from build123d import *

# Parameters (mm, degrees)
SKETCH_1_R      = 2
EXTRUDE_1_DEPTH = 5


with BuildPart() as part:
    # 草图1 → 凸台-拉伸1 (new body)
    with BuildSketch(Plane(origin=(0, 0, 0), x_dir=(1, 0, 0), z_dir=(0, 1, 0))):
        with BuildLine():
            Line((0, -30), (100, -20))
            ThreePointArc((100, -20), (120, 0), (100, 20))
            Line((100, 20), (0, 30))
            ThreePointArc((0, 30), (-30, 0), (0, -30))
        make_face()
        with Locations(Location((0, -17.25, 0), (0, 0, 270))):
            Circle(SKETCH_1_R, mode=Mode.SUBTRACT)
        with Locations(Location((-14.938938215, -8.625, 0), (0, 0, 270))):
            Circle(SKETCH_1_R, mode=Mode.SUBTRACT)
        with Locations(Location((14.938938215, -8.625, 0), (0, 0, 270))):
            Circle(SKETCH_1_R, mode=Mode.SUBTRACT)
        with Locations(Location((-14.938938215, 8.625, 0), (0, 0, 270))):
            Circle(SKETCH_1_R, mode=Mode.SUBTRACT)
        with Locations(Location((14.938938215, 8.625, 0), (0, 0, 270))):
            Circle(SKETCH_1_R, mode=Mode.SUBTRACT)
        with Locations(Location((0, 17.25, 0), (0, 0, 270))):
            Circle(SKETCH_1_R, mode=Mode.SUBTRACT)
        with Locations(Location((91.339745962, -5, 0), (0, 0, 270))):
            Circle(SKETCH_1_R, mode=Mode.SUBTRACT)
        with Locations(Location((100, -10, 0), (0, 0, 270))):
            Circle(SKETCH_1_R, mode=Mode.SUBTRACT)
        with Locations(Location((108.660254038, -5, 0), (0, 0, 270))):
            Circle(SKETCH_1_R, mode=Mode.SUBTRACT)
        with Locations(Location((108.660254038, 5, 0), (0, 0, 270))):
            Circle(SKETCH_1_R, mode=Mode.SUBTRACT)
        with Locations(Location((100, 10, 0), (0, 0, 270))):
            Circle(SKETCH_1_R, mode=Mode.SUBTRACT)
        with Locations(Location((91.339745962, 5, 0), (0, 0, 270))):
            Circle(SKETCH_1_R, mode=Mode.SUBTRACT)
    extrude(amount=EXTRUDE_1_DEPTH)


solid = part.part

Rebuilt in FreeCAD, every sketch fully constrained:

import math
import FreeCAD as App
import Part
import Sketcher

doc = App.newDocument("Part")
body = doc.addObject("PartDesign::Body", "Body")

# Sketch on XZ plane
sketch1 = body.newObject("Sketcher::SketchObject", "Sketch")
sketch1.AttachmentSupport = (doc.getObject("XZ_Plane"), [""])
sketch1.MapMode = "FlatFace"
sketch1.addGeometry(Part.LineSegment(App.Vector(0, 30, 0), App.Vector(100, 20, 0)), False)
sketch1.addGeometry(Part.ArcOfCircle(Part.Circle(App.Vector(100, 0, 0), App.Vector(0, 0, 1), 20), math.radians(-90), math.radians(90)), False)
sketch1.addGeometry(Part.LineSegment(App.Vector(100, -20, 0), App.Vector(0, -30, 0)), False)
sketch1.addGeometry(Part.ArcOfCircle(Part.Circle(App.Vector(0, 0, 0), App.Vector(0, 0, 1), 30), math.radians(90), math.radians(270)), False)
sketch1.addGeometry(Part.Circle(App.Vector(0, 17.2, 0), App.Vector(0, 0, 1), 2), False)
sketch1.addGeometry(Part.Circle(App.Vector(-14.9, 8.6, 0), App.Vector(0, 0, 1), 2), False)
sketch1.addGeometry(Part.Circle(App.Vector(14.9, 8.6, 0), App.Vector(0, 0, 1), 2), False)
sketch1.addGeometry(Part.Circle(App.Vector(100, 10, 0), App.Vector(0, 0, 1), 2), False)
sketch1.addGeometry(Part.Circle(App.Vector(91.3, 5, 0), App.Vector(0, 0, 1), 2), False)
sketch1.addGeometry(Part.Circle(App.Vector(108.7, 5, 0), App.Vector(0, 0, 1), 2), False)
sketch1.addGeometry(Part.Circle(App.Vector(-14.9, -8.6, 0), App.Vector(0, 0, 1), 2), False)
sketch1.addGeometry(Part.Circle(App.Vector(14.9, -8.6, 0), App.Vector(0, 0, 1), 2), False)
sketch1.addGeometry(Part.Circle(App.Vector(0, -17.2, 0), App.Vector(0, 0, 1), 2), False)
sketch1.addGeometry(Part.Circle(App.Vector(91.3, -5, 0), App.Vector(0, 0, 1), 2), False)
sketch1.addGeometry(Part.Circle(App.Vector(108.7, -5, 0), App.Vector(0, 0, 1), 2), False)
sketch1.addGeometry(Part.Circle(App.Vector(100, -10, 0), App.Vector(0, 0, 1), 2), False)
sketch1.addConstraint(Sketcher.Constraint("Coincident", 0, 2, 1, 2))
sketch1.addConstraint(Sketcher.Constraint("Coincident", 1, 1, 2, 1))
sketch1.addConstraint(Sketcher.Constraint("Coincident", 2, 2, 3, 2))
sketch1.addConstraint(Sketcher.Constraint("Coincident", 3, 1, 0, 1))
sketch1.addConstraint(Sketcher.Constraint("Coincident", 3, 3, -1, 1))
sketch1.addConstraint(Sketcher.Constraint("Equal", 4, 5))
sketch1.addConstraint(Sketcher.Constraint("Equal", 5, 6))
sketch1.addConstraint(Sketcher.Constraint("Equal", 6, 7))
sketch1.addConstraint(Sketcher.Constraint("Equal", 7, 8))
sketch1.addConstraint(Sketcher.Constraint("Equal", 8, 9))
sketch1.addConstraint(Sketcher.Constraint("Equal", 9, 10))
sketch1.addConstraint(Sketcher.Constraint("Equal", 10, 11))
sketch1.addConstraint(Sketcher.Constraint("Equal", 11, 12))
sketch1.addConstraint(Sketcher.Constraint("Equal", 12, 13))
sketch1.addConstraint(Sketcher.Constraint("Equal", 13, 14))
sketch1.addConstraint(Sketcher.Constraint("Equal", 14, 15))
sketch1.addConstraint(Sketcher.Constraint("Symmetric", 6, 3, 10, 3, -1, 1))
sketch1.addConstraint(Sketcher.Constraint("Symmetric", 5, 3, 11, 3, -1, 1))
sketch1.addConstraint(Sketcher.Constraint("Symmetric", 4, 3, 12, 3, -1, 1))
sketch1.addConstraint(Sketcher.Constraint("Symmetric", 5, 3, 6, 3, -2))
sketch1.addConstraint(Sketcher.Constraint("Symmetric", 8, 3, 13, 3, -1))
sketch1.addConstraint(Sketcher.Constraint("Symmetric", 9, 3, 14, 3, -1))
sketch1.addConstraint(Sketcher.Constraint("Symmetric", 7, 3, 15, 3, -1))
sketch1.addConstraint(Sketcher.Constraint("Symmetric", 0, 2, 1, 1, -1))
sketch1.addConstraint(Sketcher.Constraint("PointOnObject", 4, 3, -2))
sketch1.addConstraint(Sketcher.Constraint("PointOnObject", 2, 2, -2))
sketch1.addConstraint(Sketcher.Constraint("PointOnObject", 3, 1, -2))
sketch1.addConstraint(Sketcher.Constraint("Horizontal", 8, 3, 9, 3))
sketch1.addConstraint(Sketcher.Constraint("Vertical", 1, 3, 7, 3))
sketch1.addConstraint(Sketcher.Constraint("Vertical", 15, 3, 0, 2))
sketch1.addConstraint(Sketcher.Constraint("Diameter", 4, 4.0))
sketch1.addConstraint(Sketcher.Constraint("Radius", 1, 20.0))
sketch1.addConstraint(Sketcher.Constraint("Radius", 3, 30.0))
sketch1.addConstraint(Sketcher.Constraint("DistanceX", -1, 1, 1, 3, 100.0))
sketch1.addConstraint(Sketcher.Constraint("DistanceY", -1, 1, 7, 3, 10.0))
sketch1.addConstraint(Sketcher.Constraint("DistanceY", -1, 1, 8, 3, 5.0))
sketch1.addConstraint(Sketcher.Constraint("DistanceY", -1, 1, 4, 3, 17.25))
sketch1.addConstraint(Sketcher.Constraint("DistanceY", 10, 3, 5, 3, 17.25))
sketch1.addConstraint(Sketcher.Constraint("DistanceX", 5, 3, -1, 1, 14.938938))
sketch1.addConstraint(Sketcher.Constraint("DistanceX", 8, 3, 9, 3, 17.320508))
sketch1.addConstraint(Sketcher.Constraint("DistanceX", -1, 1, 8, 3, 91.339746))
pad1 = body.newObject("PartDesign::Pad", "Pad")
pad1.Profile = sketch1
pad1.Length = 5
pad1.Reversed = True

doc.recompute()
